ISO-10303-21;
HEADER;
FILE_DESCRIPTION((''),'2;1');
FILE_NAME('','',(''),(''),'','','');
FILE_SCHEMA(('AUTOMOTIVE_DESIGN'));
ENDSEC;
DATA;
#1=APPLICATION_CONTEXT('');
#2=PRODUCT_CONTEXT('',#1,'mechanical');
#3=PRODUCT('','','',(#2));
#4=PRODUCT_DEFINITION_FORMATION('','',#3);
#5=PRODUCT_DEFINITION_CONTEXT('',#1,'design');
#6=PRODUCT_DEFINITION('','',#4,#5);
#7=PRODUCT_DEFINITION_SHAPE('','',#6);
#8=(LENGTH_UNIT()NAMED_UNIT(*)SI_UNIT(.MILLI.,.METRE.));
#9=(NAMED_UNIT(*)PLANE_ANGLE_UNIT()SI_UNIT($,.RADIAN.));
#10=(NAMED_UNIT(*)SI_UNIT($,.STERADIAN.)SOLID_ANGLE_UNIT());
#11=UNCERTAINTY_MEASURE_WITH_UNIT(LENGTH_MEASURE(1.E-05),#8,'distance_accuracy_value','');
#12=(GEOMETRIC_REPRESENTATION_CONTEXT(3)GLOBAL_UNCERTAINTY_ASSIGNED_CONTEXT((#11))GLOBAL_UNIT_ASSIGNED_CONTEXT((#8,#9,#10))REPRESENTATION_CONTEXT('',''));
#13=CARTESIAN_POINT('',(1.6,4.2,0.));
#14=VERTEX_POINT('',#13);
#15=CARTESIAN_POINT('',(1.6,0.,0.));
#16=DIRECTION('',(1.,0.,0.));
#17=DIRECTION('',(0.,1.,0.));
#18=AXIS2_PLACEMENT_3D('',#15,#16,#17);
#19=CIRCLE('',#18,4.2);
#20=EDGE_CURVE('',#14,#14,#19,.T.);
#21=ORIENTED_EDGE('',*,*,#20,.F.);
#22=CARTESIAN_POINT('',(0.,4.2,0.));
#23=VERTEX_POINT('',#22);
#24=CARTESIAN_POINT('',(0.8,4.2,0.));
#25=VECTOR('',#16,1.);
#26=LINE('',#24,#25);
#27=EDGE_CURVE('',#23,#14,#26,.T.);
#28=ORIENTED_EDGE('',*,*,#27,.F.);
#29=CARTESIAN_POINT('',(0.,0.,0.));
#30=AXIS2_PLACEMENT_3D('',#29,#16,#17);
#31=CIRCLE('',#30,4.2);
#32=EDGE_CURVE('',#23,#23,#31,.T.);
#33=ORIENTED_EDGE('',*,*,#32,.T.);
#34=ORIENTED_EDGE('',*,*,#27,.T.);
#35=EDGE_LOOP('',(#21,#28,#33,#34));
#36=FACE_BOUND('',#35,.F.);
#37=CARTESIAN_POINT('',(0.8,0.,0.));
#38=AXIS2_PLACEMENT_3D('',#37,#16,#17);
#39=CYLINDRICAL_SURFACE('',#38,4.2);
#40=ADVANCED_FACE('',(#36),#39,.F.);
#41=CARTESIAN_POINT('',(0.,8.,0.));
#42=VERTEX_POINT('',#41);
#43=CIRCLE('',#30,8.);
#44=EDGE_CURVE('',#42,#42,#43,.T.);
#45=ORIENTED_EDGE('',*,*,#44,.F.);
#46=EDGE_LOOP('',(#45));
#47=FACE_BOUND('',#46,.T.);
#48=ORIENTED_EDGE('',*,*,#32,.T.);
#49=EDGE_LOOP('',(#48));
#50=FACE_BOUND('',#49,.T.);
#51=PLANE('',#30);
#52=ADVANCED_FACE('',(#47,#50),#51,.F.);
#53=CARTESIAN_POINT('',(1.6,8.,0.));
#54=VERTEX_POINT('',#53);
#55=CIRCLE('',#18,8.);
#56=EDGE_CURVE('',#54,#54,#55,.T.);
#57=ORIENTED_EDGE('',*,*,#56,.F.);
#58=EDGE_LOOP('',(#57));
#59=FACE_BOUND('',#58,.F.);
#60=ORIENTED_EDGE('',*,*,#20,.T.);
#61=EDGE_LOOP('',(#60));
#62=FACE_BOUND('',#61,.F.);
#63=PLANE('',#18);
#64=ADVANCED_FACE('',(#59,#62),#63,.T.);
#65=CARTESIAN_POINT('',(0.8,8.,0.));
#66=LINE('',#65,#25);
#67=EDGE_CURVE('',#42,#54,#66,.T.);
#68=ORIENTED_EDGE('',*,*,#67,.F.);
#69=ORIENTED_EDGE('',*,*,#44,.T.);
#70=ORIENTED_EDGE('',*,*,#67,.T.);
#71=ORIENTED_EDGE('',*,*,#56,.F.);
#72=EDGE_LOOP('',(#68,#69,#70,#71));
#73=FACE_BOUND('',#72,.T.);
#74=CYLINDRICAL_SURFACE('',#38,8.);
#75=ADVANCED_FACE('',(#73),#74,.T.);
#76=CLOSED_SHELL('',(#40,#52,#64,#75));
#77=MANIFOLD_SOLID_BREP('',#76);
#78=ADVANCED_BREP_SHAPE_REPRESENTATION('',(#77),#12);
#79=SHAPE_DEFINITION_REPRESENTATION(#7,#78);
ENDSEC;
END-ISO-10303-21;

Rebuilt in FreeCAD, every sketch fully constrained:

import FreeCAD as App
import Part
import Sketcher

V = App.Vector
Q = App.Units.Quantity


def add_polygon(sketch, points):
    """Adds a closed chain of lines whose ends are joined by coincident constraints."""
    first, n = sketch.GeometryCount, len(points)
    for a, b in zip(points, points[1:] + points[:1]):
        sketch.addGeometry(Part.LineSegment(App.Vector(*a, 0), App.Vector(*b, 0)), False)
    for i in range(n):
        sketch.addConstraint(Sketcher.Constraint("Coincident", first + i, 2, first + (i + 1) % n, 1))

doc = App.newDocument("Part")
body = doc.addObject("PartDesign::Body", "Body")

# Sketch on XY plane
sketch1 = doc.addObject("Sketcher::SketchObject", "Sketch")
body.addObject(sketch1)
sketch1.AttachmentSupport = (doc.XY_Plane, [""])
sketch1.MapMode = "FlatFace"
add_polygon(sketch1, [(0, 8), (0, 4.2), (1.6, 4.2), (1.6, 8)])  # lines 0-3
sketch1.addConstraint([
    Sketcher.Constraint("Vertical", 0),
    Sketcher.Constraint("Horizontal", 1),
    Sketcher.Constraint("Vertical", 2),
    Sketcher.Constraint("Horizontal", 3),
    Sketcher.Constraint("PointOnObject", 0, 2, -2),
    Sketcher.Constraint("DistanceX", 1, 1, 1, 2, Q("1.6 mm")),
    Sketcher.Constraint("DistanceY", 0, 2, 0, 1, Q("3.8 mm")),
    Sketcher.Constraint("DistanceY", -1, 1, 2, 2, Q("8 mm")),
])
revolution = doc.addObject("PartDesign::Revolution", "Revolution")
body.addObject(revolution)
revolution.Profile = sketch1
revolution.ReferenceAxis = (sketch1, ["H_Axis"])
revolution.Angle = 360

doc.recompute()
